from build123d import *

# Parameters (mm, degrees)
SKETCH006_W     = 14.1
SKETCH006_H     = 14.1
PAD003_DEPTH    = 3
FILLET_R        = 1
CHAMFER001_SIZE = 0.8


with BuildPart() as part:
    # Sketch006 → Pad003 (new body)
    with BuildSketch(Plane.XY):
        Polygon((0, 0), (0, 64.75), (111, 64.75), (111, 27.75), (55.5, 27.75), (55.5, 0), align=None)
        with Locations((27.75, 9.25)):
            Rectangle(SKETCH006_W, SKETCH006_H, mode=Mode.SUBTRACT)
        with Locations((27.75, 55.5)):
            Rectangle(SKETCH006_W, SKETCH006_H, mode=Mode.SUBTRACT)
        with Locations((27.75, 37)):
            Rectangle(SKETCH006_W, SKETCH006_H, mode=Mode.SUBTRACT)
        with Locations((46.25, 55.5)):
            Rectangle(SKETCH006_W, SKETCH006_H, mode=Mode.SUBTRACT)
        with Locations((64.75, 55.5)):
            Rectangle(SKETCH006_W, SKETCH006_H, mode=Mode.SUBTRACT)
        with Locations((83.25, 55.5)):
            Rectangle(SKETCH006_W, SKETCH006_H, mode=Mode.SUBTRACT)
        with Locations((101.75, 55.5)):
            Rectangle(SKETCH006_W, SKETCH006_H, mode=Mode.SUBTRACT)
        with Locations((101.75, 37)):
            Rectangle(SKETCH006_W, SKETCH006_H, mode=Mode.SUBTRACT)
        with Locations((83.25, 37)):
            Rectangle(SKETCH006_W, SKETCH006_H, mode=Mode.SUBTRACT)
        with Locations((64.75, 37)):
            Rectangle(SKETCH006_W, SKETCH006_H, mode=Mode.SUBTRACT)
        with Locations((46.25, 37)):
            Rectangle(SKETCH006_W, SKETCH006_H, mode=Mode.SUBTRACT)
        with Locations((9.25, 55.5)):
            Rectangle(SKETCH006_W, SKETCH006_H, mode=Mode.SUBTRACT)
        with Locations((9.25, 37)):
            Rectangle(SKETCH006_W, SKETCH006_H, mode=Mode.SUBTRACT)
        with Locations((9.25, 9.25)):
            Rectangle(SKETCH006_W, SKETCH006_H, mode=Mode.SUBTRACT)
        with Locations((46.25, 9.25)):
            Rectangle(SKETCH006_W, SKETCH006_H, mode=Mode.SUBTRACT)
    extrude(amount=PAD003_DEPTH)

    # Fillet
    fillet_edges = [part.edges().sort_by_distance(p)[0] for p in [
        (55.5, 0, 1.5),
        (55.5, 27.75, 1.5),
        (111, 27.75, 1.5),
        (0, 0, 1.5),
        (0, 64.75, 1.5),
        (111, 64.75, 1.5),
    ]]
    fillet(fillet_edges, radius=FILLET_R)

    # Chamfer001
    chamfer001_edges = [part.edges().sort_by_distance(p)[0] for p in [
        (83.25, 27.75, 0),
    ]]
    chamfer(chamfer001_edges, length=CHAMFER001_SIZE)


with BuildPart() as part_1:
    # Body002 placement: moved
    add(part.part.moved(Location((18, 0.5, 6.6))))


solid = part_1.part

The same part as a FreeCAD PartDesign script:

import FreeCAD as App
import Part
import Sketcher


def edges_at(feature, points):
    """Names of the edges that pass closest to the given points."""
    edges = feature.Shape.Edges
    near = lambda p: min(range(len(edges)), key=lambda i: edges[i].distToShape(Part.Vertex(*p))[0])
    return sorted({f"Edge{near(p) + 1}" for p in points})


def add_polygon(sketch, points):
    """Adds a closed chain of lines whose ends are joined by coincident constraints."""
    first, n = sketch.GeometryCount, len(points)
    for a, b in zip(points, points[1:] + points[:1]):
        sketch.addGeometry(Part.LineSegment(App.Vector(*a, 0), App.Vector(*b, 0)), False)
    for i in range(n):
        sketch.addConstraint(Sketcher.Constraint("Coincident", first + i, 2, first + (i + 1) % n, 1))

doc = App.newDocument("Part")
params = doc.addObject("Spreadsheet::Sheet", "Params")
for row, (alias, value) in enumerate([
    ("sketch1_width", "111 mm"),
    ("sketch1_height", "37 mm"),
    ("sketch1_width2", "14.1 mm"),
    ("sketch1_height2", "64.75 mm"),
    ("pad1_length", "3 mm"),
    ("fillet_radius", "1 mm"),
    ("chamfer_size", "0.8 mm"),
], start=1):
    params.set(f"A{row}", alias)
    params.set(f"B{row}", "=" + value)
    params.setAlias(f"B{row}", alias)

body = doc.addObject("PartDesign::Body", "Body")

sketch1 = doc.addObject("Sketcher::SketchObject", "Sketch")
body.addObject(sketch1)
sketch1.AttachmentSupport = (doc.XY_Plane, [""])
sketch1.MapMode = "FlatFace"
add_polygon(sketch1, [(0, 65), (0, 0), (56, 0), (56, 28), (111, 28), (111, 65)])
add_polygon(sketch1, [(39, 2), (39, 16), (53, 16), (53, 2)])
add_polygon(sketch1, [(21, 2), (21, 16), (35, 16), (35, 2)])
add_polygon(sketch1, [(2, 2), (2, 16), (16, 16), (16, 2)])
add_polygon(sketch1, [(95, 30), (95, 44), (109, 44), (109, 30)])
add_polygon(sketch1, [(76, 30), (76, 44), (90, 44), (90, 30)])
add_polygon(sketch1, [(58, 30), (58, 44), (72, 44), (72, 30)])
add_polygon(sketch1, [(95, 48), (95, 63), (109, 63), (109, 48)])
add_polygon(sketch1, [(76, 48), (76, 63), (90, 63), (90, 48)])
add_polygon(sketch1, [(58, 48), (58, 63), (72, 63), (72, 48)])
add_polygon(sketch1, [(39, 30), (39, 44), (53, 44), (53, 30)])
add_polygon(sketch1, [(21, 30), (21, 44), (35, 44), (35, 30)])
add_polygon(sketch1, [(2, 30), (2, 44), (16, 44), (16, 30)])
add_polygon(sketch1, [(39, 48), (39, 63), (53, 63), (53, 48)])
add_polygon(sketch1, [(21, 48), (21, 63), (35, 63), (35, 48)])
add_polygon(sketch1, [(2, 48), (2, 63), (16, 63), (16, 48)])
sketch1.addConstraint(Sketcher.Constraint("Vertical", 0))
sketch1.addConstraint(Sketcher.Constraint("Horizontal", 1))
sketch1.addConstraint(Sketcher.Constraint("Vertical", 2))
sketch1.addConstraint(Sketcher.Constraint("Horizontal", 3))
sketch1.addConstraint(Sketcher.Constraint("Vertical", 4))
sketch1.addConstraint(Sketcher.Constraint("Horizontal", 5))
sketch1.addConstraint(Sketcher.Constraint("Vertical", 6))
sketch1.addConstraint(Sketcher.Constraint("Horizontal", 7))
sketch1.addConstraint(Sketcher.Constraint("Vertical", 8))
sketch1.addConstraint(Sketcher.Constraint("Horizontal", 9))
sketch1.addConstraint(Sketcher.Constraint("Vertical", 10))
sketch1.addConstraint(Sketcher.Constraint("Horizontal", 11))
sketch1.addConstraint(Sketcher.Constraint("Vertical", 12))
sketch1.addConstraint(Sketcher.Constraint("Horizontal", 13))
sketch1.addConstraint(Sketcher.Constraint("Vertical", 14))
sketch1.addConstraint(Sketcher.Constraint("Horizontal", 15))
sketch1.addConstraint(Sketcher.Constraint("Vertical", 16))
sketch1.addConstraint(Sketcher.Constraint("Horizontal", 17))
sketch1.addConstraint(Sketcher.Constraint("Vertical", 18))
sketch1.addConstraint(Sketcher.Constraint("Horizontal", 19))
sketch1.addConstraint(Sketcher.Constraint("Vertical", 20))
sketch1.addConstraint(Sketcher.Constraint("Horizontal", 21))
sketch1.addConstraint(Sketcher.Constraint("Vertical", 22))
sketch1.addConstraint(Sketcher.Constraint("Horizontal", 23))
sketch1.addConstraint(Sketcher.Constraint("Vertical", 24))
sketch1.addConstraint(Sketcher.Constraint("Horizontal", 25))
sketch1.addConstraint(Sketcher.Constraint("Vertical", 26))
sketch1.addConstraint(Sketcher.Constraint("Horizontal", 27))
sketch1.addConstraint(Sketcher.Constraint("Vertical", 28))
sketch1.addConstraint(Sketcher.Constraint("Horizontal", 29))
sketch1.addConstraint(Sketcher.Constraint("Vertical", 30))
sketch1.addConstraint(Sketcher.Constraint("Horizontal", 31))
sketch1.addConstraint(Sketcher.Constraint("Vertical", 32))
sketch1.addConstraint(Sketcher.Constraint("Horizontal", 33))
sketch1.addConstraint(Sketcher.Constraint("Vertical", 34))
sketch1.addConstraint(Sketcher.Constraint("Horizontal", 35))
sketch1.addConstraint(Sketcher.Constraint("Vertical", 36))
sketch1.addConstraint(Sketcher.Constraint("Horizontal", 37))
sketch1.addConstraint(Sketcher.Constraint("Vertical", 38))
sketch1.addConstraint(Sketcher.Constraint("Horizontal", 39))
sketch1.addConstraint(Sketcher.Constraint("Vertical", 40))
sketch1.addConstraint(Sketcher.Constraint("Horizontal", 41))
sketch1.addConstraint(Sketcher.Constraint("Vertical", 42))
sketch1.addConstraint(Sketcher.Constraint("Horizontal", 43))
sketch1.addConstraint(Sketcher.Constraint("Vertical", 44))
sketch1.addConstraint(Sketcher.Constraint("Horizontal", 45))
sketch1.addConstraint(Sketcher.Constraint("Vertical", 46))
sketch1.addConstraint(Sketcher.Constraint("Horizontal", 47))
sketch1.addConstraint(Sketcher.Constraint("Vertical", 48))
sketch1.addConstraint(Sketcher.Constraint("Horizontal", 49))
sketch1.addConstraint(Sketcher.Constraint("Vertical", 50))
sketch1.addConstraint(Sketcher.Constraint("Horizontal", 51))
sketch1.addConstraint(Sketcher.Constraint("Vertical", 52))
sketch1.addConstraint(Sketcher.Constraint("Horizontal", 53))
sketch1.addConstraint(Sketcher.Constraint("Vertical", 54))
sketch1.addConstraint(Sketcher.Constraint("Horizontal", 55))
sketch1.addConstraint(Sketcher.Constraint("Vertical", 56))
sketch1.addConstraint(Sketcher.Constraint("Horizontal", 57))
sketch1.addConstraint(Sketcher.Constraint("Vertical", 58))
sketch1.addConstraint(Sketcher.Constraint("Horizontal", 59))
sketch1.addConstraint(Sketcher.Constraint("Vertical", 60))
sketch1.addConstraint(Sketcher.Constraint("Horizontal", 61))
sketch1.addConstraint(Sketcher.Constraint("Vertical", 62))
sketch1.addConstraint(Sketcher.Constraint("Horizontal", 63))
sketch1.addConstraint(Sketcher.Constraint("Vertical", 64))
sketch1.addConstraint(Sketcher.Constraint("Horizontal", 65))
sketch1.addConstraint(Sketcher.Constraint("Coincident", 0, 2, -1, 1))
sketch1.addConstraint(Sketcher.Constraint("Horizontal", 7, 2, 10, 2))
sketch1.addConstraint(Sketcher.Constraint("Horizontal", 9, 2, 12, 2))
sketch1.addConstraint(Sketcher.Constraint("Horizontal", 11, 2, 14, 2))
sketch1.addConstraint(Sketcher.Constraint("Horizontal", 13, 2, 16, 2))
sketch1.addConstraint(Sketcher.Constraint("Horizontal", 19, 2, 22, 2))
sketch1.addConstraint(Sketcher.Constraint("Horizontal", 21, 2, 24, 2))
sketch1.addConstraint(Sketcher.Constraint("Horizontal", 23, 2, 26, 2))
sketch1.addConstraint(Sketcher.Constraint("Horizontal", 25, 2, 28, 2))
sketch1.addConstraint(Sketcher.Constraint("Horizontal", 31, 2, 34, 2))
sketch1.addConstraint(Sketcher.Constraint("Horizontal", 33, 2, 36, 2))
sketch1.addConstraint(Sketcher.Constraint("Horizontal", 35, 2, 38, 2))
sketch1.addConstraint(Sketcher.Constraint("Horizontal", 37, 2, 40, 2))
sketch1.addConstraint(Sketcher.Constraint("Horizontal", 27, 2, 42, 2))
sketch1.addConstraint(Sketcher.Constraint("Horizontal", 29, 2, 44, 2))
sketch1.addConstraint(Sketcher.Constraint("Horizontal", 43, 2, 46, 2))
sketch1.addConstraint(Sketcher.Constraint("Horizontal", 45, 2, 48, 2))
sketch1.addConstraint(Sketcher.Constraint("Horizontal", 47, 2, 50, 2))
sketch1.addConstraint(Sketcher.Constraint("Horizontal", 49, 2, 52, 2))
sketch1.addConstraint(Sketcher.Constraint("Horizontal", 39, 2, 54, 2))
sketch1.addConstraint(Sketcher.Constraint("Horizontal", 41, 2, 56, 2))
sketch1.addConstraint(Sketcher.Constraint("Horizontal", 55, 2, 58, 2))
sketch1.addConstraint(Sketcher.Constraint("Horizontal", 57, 2, 60, 2))
sketch1.addConstraint(Sketcher.Constraint("Horizontal", 59, 2, 62, 2))
sketch1.addConstraint(Sketcher.Constraint("Horizontal", 61, 2, 64, 2))
sketch1.addConstraint(Sketcher.Constraint("Vertical", 21, 2, 30, 2))
sketch1.addConstraint(Sketcher.Constraint("Vertical", 20, 2, 31, 2))
sketch1.addConstraint(Sketcher.Constraint("Vertical", 25, 2, 34, 2))
sketch1.addConstraint(Sketcher.Constraint("Vertical", 24, 2, 35, 2))
sketch1.addConstraint(Sketcher.Constraint("Vertical", 29, 2, 38, 2))
sketch1.addConstraint(Sketcher.Constraint("Vertical", 28, 2, 39, 2))
sketch1.addConstraint(Sketcher.Constraint("Vertical", 9, 2, 42, 2))
sketch1.addConstraint(Sketcher.Constraint("Vertical", 8, 2, 43, 2))
sketch1.addConstraint(Sketcher.Constraint("Vertical", 13, 2, 46, 2))
sketch1.addConstraint(Sketcher.Constraint("Vertical", 12, 2, 47, 2))
sketch1.addConstraint(Sketcher.Constraint("Vertical", 17, 2, 50, 2))
sketch1.addConstraint(Sketcher.Constraint("Vertical", 16, 2, 51, 2))
sketch1.addConstraint(Sketcher.Constraint("Vertical", 45, 2, 54, 2))
sketch1.addConstraint(Sketcher.Constraint("Vertical", 44, 2, 55, 2))
sketch1.addConstraint(Sketcher.Constraint("Vertical", 49, 2, 58, 2))
sketch1.addConstraint(Sketcher.Constraint("Vertical", 48, 2, 59, 2))
sketch1.addConstraint(Sketcher.Constraint("Vertical", 53, 2, 62, 2))
sketch1.addConstraint(Sketcher.Constraint("Vertical", 52, 2, 63, 2))
sketch1.addConstraint(Sketcher.Constraint("Equal", 1, 3))
sketch1.addConstraint(Sketcher.Constraint("Equal", 9, 11))
sketch1.addConstraint(Sketcher.Constraint("Equal", 13, 15))
sketch1.addConstraint(Sketcher.Constraint("Equal", 17, 19))
sketch1.addConstraint(Sketcher.Constraint("Equal", 21, 23))
sketch1.addConstraint(Sketcher.Constraint("Equal", 25, 27))
sketch1.addConstraint(Sketcher.Constraint("Equal", 65, 6))
sketch1.addConstraint(Sketcher.Constraint("Equal", 16, 18))
sketch1.addConstraint(Sketcher.Constraint("Equal", 28, 30))
sketch1.addConstraint(Sketcher.Constraint("DistanceX", 5, 2, 5, 1, 111.0))
sketch1.addConstraint(Sketcher.Constraint("DistanceY", 4, 1, 4, 2, 37.0))
sketch1.addConstraint(Sketcher.Constraint("DistanceX", 7, 1, 7, 2, 14.1))
sketch1.addConstraint(Sketcher.Constraint("DistanceY", 0, 2, 0, 1, 64.75))
sketch1.addConstraint(Sketcher.Constraint("DistanceX", -1, 1, 6, 2, 39.2))
sketch1.addConstraint(Sketcher.Constraint("DistanceY", -1, 1, 6, 2, 16.3))
sketch1.addConstraint(Sketcher.Constraint("DistanceX", -1, 1, 10, 2, 20.7))
sketch1.addConstraint(Sketcher.Constraint("DistanceX", -1, 1, 14, 2, 2.2))
sketch1.addConstraint(Sketcher.Constraint("DistanceX", -1, 1, 18, 2, 94.7))
sketch1.addConstraint(Sketcher.Constraint("DistanceX", -1, 1, 22, 2, 76.2))
sketch1.addConstraint(Sketcher.Constraint("DistanceX", -1, 1, 26, 2, 57.7))
sketch1.addConstraint(Sketcher.Constraint("DistanceY", -1, 1, 18, 2, 44.05))
sketch1.addConstraint(Sketcher.Constraint("DistanceY", -1, 1, 30, 2, 62.55))
sketch1.setExpression("Constraints[184]", "Params.sketch1_width")
sketch1.setExpression("Constraints[185]", "Params.sketch1_height")
sketch1.setExpression("Constraints[186]", "Params.sketch1_width2")
sketch1.setExpression("Constraints[187]", "Params.sketch1_height2")
pad1 = doc.addObject("PartDesign::Pad", "Pad")
body.addObject(pad1)
pad1.Profile = sketch1
pad1.setExpression("Length", "Params.pad1_length")
doc.recompute()

fillet = doc.addObject("PartDesign::Fillet", "Fillet")
body.addObject(fillet)
fillet.Base = (pad1, edges_at(pad1, [
    (55.5, 0, 1.5),
    (55.5, 27.75, 1.5),
    (111, 27.75, 1.5),
    (0, 0, 1.5),
    (0, 64.75, 1.5),
    (111, 64.75, 1.5),
]))
fillet.setExpression("Radius", "Params.fillet_radius")
doc.recompute()

chamfer = doc.addObject("PartDesign::Chamfer", "Chamfer")
body.addObject(chamfer)
chamfer.Base = (fillet, edges_at(fillet, [(83.25, 27.75, 0)]))
chamfer.setExpression("Size", "Params.chamfer_size")
body2 = doc.addObject("PartDesign::Body", "Body001")
doc.recompute()

body.Placement = App.Placement(App.Vector(18, 0.5, 6.6), App.Rotation(App.Vector(0, 0, 1), 0))
boolean = doc.addObject("PartDesign::Boolean", "Boolean")
body2.addObject(boolean)
boolean.Type = "Fuse"
boolean.addObjects([body])

doc.recompute()
